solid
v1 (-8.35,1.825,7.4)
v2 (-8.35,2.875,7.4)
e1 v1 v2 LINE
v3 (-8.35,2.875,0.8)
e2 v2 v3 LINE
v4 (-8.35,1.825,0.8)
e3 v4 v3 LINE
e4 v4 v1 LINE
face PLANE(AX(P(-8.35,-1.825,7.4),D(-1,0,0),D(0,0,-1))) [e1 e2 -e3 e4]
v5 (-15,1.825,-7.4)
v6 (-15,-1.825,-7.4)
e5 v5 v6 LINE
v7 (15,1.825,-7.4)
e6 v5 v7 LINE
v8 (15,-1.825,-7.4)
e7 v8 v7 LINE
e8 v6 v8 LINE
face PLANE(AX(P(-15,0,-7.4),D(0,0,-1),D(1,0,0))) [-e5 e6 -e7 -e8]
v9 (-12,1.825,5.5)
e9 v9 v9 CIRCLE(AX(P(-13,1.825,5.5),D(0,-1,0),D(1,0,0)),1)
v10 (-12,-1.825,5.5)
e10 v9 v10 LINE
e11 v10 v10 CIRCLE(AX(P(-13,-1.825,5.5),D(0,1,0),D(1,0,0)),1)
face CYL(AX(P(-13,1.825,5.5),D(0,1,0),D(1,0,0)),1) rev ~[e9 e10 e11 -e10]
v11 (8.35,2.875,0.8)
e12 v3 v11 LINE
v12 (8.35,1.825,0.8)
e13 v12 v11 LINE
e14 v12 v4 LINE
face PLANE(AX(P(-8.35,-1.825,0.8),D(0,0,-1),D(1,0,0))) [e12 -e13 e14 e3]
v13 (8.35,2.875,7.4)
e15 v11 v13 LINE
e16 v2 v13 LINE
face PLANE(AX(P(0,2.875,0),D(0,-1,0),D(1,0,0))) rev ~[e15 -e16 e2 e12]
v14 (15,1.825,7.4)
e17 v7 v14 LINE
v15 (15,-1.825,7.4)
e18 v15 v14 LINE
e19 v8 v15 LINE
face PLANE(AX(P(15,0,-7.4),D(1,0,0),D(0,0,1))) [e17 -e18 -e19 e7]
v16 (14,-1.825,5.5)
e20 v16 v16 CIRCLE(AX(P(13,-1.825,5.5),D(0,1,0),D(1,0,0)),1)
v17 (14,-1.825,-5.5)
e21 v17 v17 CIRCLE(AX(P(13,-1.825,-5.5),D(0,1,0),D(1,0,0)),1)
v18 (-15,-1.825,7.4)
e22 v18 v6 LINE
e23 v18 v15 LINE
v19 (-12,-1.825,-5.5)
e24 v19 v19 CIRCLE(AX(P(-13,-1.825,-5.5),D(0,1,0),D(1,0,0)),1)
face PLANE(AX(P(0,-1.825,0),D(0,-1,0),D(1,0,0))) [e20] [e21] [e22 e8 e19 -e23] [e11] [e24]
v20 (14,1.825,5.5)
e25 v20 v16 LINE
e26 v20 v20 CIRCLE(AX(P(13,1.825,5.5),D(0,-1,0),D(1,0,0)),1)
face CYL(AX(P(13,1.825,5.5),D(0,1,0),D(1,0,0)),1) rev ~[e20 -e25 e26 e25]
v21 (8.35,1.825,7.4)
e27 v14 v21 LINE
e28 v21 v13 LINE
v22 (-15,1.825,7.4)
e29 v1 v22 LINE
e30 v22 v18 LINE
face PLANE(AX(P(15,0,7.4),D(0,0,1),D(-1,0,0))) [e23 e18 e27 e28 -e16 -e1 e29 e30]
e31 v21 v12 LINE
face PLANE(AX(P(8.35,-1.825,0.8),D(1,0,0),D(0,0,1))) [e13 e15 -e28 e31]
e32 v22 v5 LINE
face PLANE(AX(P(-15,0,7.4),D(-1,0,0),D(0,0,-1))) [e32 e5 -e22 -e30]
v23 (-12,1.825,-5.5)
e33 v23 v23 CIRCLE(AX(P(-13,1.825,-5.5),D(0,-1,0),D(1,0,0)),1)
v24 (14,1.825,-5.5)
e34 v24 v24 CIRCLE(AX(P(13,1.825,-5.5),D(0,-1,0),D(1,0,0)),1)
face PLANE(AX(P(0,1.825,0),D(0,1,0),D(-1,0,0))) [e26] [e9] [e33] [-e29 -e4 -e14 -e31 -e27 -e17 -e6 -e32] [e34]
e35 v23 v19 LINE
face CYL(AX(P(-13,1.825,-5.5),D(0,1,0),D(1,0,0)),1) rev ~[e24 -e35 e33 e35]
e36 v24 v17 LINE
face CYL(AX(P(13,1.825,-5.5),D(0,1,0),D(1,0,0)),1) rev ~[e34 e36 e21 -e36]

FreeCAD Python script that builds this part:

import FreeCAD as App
import Part
import Sketcher


def add_polygon(sketch, points):
    """Adds a closed chain of lines whose ends are joined by coincident constraints."""
    first, n = sketch.GeometryCount, len(points)
    for a, b in zip(points, points[1:] + points[:1]):
        sketch.addGeometry(Part.LineSegment(App.Vector(*a, 0), App.Vector(*b, 0)), False)
    for i in range(n):
        sketch.addConstraint(Sketcher.Constraint("Coincident", first + i, 2, first + (i + 1) % n, 1))

doc = App.newDocument("Part")
params = doc.addObject("Spreadsheet::Sheet", "Params")
for row, (alias, value) in enumerate([
    ("sketch1_width", "30 mm"),
    ("sketch1_height", "14.8 mm"),
    ("pad1_length", "3.65 mm"),
    ("sketch2_width", "16.7 mm"),
    ("sketch2_height", "6.6 mm"),
    ("pad2_length", "4.7 mm"),
    ("sketch3_diameter", "2 mm"),
    ("pocket1_length", "10 mm"),
], start=1):
    params.set(f"A{row}", alias)
    params.set(f"B{row}", "=" + value)
    params.setAlias(f"B{row}", alias)

body = doc.addObject("PartDesign::Body", "Body")

# Sketch on XZ plane
sketch1 = body.newObject("Sketcher::SketchObject", "Sketch")
sketch1.AttachmentSupport = (doc.getObject("XZ_Plane"), [""])
sketch1.MapMode = "FlatFace"
add_polygon(sketch1, [(-15, 7), (15, 7), (15, -7), (-15, -7)])  # lines 0-3
sketch1.addConstraint(Sketcher.Constraint("Horizontal", 0))
sketch1.addConstraint(Sketcher.Constraint("Vertical", 1))
sketch1.addConstraint(Sketcher.Constraint("Horizontal", 2))
sketch1.addConstraint(Sketcher.Constraint("Vertical", 3))
sketch1.addConstraint(Sketcher.Constraint("Symmetric", 0, 2, 2, 2, -1, 1))
sketch1.addConstraint(Sketcher.Constraint("DistanceX", 0, 1, 0, 2, 30.0))
sketch1.addConstraint(Sketcher.Constraint("DistanceY", 1, 2, 1, 1, 14.8))
sketch1.setExpression("Constraints[9]", "Params.sketch1_width")
sketch1.setExpression("Constraints[10]", "Params.sketch1_height")
pad1 = body.newObject("PartDesign::Pad", "Pad")
pad1.Profile = sketch1
pad1.setExpression("Length", "Params.pad1_length")
pad1.Midplane = True

# Sketch on XZ plane
sketch2 = body.newObject("Sketcher::SketchObject", "Sketch001")
sketch2.AttachmentSupport = (doc.getObject("XZ_Plane"), [""])
sketch2.MapMode = "FlatFace"
sketch2.AttachmentOffset = App.Placement(App.Vector(0, 0, 1.825), App.Rotation())
add_polygon(sketch2, [(8, 7), (-8, 7), (-8, 1), (8, 1)])  # lines 0-3
sketch2.addConstraint(Sketcher.Constraint("Horizontal", 0))
sketch2.addConstraint(Sketcher.Constraint("Vertical", 1))
sketch2.addConstraint(Sketcher.Constraint("Horizontal", 2))
sketch2.addConstraint(Sketcher.Constraint("Vertical", 3))
sketch2.addConstraint(Sketcher.Constraint("DistanceX", 0, 2, 0, 1, 16.7))
sketch2.addConstraint(Sketcher.Constraint("DistanceY", 1, 2, 1, 1, 6.6))
sketch2.addConstraint(Sketcher.Constraint("DistanceY", -1, 1, 0, 2, 7.4))
sketch2.addConstraint(Sketcher.Constraint("DistanceX", 0, 2, -1, 1, 8.35))
sketch2.setExpression("Constraints[8]", "Params.sketch2_width")
sketch2.setExpression("Constraints[9]", "Params.sketch2_height")
pad2 = body.newObject("PartDesign::Pad", "Pad001")
pad2.Profile = sketch2
pad2.setExpression("Length", "Params.pad2_length")
pad2.Reversed = True

# Sketch on XZ plane
sketch3 = body.newObject("Sketcher::SketchObject", "Sketch002")
sketch3.AttachmentSupport = (doc.getObject("XZ_Plane"), [""])
sketch3.MapMode = "FlatFace"
sketch3.AttachmentOffset = App.Placement(App.Vector(0, 0, -1.825), App.Rotation())
sketch3.addGeometry(Part.Circle(App.Vector(-13, 5.5, 0), App.Vector(0, 0, 1), 1), False)
sketch3.addGeometry(Part.Circle(App.Vector(13, 5.5, 0), App.Vector(0, 0, 1), 1), False)
sketch3.addGeometry(Part.Circle(App.Vector(-13, -5.5, 0), App.Vector(0, 0, 1), 1), False)
sketch3.addGeometry(Part.Circle(App.Vector(13, -5.5, 0), App.Vector(0, 0, 1), 1), False)
sketch3.addConstraint(Sketcher.Constraint("Equal", 0, 1))
sketch3.addConstraint(Sketcher.Constraint("Equal", 1, 2))
sketch3.addConstraint(Sketcher.Constraint("Equal", 2, 3))
sketch3.addConstraint(Sketcher.Constraint("Symmetric", 1, 3, 2, 3, -1, 1))
sketch3.addConstraint(Sketcher.Constraint("Symmetric", 0, 3, 3, 3, -1, 1))
sketch3.addConstraint(Sketcher.Constraint("Symmetric", 0, 3, 1, 3, -2))
sketch3.addConstraint(Sketcher.Constraint("Diameter", 0, 2.0))
sketch3.addConstraint(Sketcher.Constraint("DistanceX", 0, 3, 1, 3, 26.0))
sketch3.addConstraint(Sketcher.Constraint("DistanceY", 2, 3, 0, 3, 11.0))
sketch3.setExpression("Constraints[6]", "Params.sketch3_diameter")
pocket1 = body.newObject("PartDesign::Pocket", "Pocket")
pocket1.Profile = sketch3
pocket1.setExpression("Length", "Params.pocket1_length")
pocket1.Reversed = True

doc.recompute()
